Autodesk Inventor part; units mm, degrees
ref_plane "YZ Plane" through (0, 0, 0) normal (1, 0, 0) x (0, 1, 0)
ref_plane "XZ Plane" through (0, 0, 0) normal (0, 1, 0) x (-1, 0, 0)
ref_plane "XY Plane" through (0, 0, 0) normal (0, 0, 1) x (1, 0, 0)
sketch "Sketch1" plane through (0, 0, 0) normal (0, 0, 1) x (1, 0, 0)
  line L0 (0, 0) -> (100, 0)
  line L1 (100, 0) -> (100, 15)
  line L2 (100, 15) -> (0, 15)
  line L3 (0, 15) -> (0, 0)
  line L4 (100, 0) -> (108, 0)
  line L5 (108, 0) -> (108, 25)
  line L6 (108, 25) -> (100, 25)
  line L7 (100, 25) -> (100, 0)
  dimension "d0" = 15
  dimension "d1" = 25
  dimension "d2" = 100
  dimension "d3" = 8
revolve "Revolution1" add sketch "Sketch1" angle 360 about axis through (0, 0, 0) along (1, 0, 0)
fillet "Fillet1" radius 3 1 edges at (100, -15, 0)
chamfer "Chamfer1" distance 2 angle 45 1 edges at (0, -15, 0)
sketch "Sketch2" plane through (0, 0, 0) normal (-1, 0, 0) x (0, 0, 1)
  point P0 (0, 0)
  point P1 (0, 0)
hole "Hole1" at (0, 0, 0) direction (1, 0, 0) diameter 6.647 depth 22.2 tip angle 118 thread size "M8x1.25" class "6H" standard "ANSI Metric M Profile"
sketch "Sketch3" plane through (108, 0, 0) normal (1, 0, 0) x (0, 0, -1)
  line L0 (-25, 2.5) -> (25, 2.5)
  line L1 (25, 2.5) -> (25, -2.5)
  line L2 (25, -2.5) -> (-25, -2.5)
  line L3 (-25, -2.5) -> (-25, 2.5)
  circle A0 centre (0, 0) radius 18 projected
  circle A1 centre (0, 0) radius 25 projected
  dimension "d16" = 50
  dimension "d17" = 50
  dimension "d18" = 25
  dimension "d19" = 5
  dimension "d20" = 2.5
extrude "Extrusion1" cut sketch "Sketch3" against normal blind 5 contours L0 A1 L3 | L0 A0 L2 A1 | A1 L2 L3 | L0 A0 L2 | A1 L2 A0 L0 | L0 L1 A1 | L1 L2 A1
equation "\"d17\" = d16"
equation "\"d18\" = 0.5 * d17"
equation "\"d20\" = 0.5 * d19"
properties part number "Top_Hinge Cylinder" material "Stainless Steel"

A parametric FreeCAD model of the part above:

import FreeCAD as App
import Part
import Sketcher
from FreeCAD import Vector


def edges_at(feature, points):
    """Names of the edges that pass closest to the given points."""
    edges = feature.Shape.Edges
    near = lambda p: min(range(len(edges)), key=lambda i: edges[i].distToShape(Part.Vertex(*p))[0])
    return sorted({f"Edge{near(p) + 1}" for p in points})


def add_polygon(sketch, points):
    """Adds a closed chain of lines whose ends are joined by coincident constraints."""
    first, n = sketch.GeometryCount, len(points)
    for a, b in zip(points, points[1:] + points[:1]):
        sketch.addGeometry(Part.LineSegment(App.Vector(*a, 0), App.Vector(*b, 0)), False)
    for i in range(n):
        sketch.addConstraint(Sketcher.Constraint("Coincident", first + i, 2, first + (i + 1) % n, 1))

doc = App.newDocument("Part")
body = doc.addObject("PartDesign::Body", "Body")

# Sketch on XY plane
sketch1 = body.newObject("Sketcher::SketchObject", "Sketch")
sketch1.AttachmentSupport = (doc.getObject("XY_Plane"), [""])
sketch1.MapMode = "FlatFace"
add_polygon(sketch1, [(0, 15), (0, 0), (108, 0), (108, 25), (100, 25), (100, 15)])  # lines 0-5
sketch1.addConstraint(Sketcher.Constraint("Vertical", 0))
sketch1.addConstraint(Sketcher.Constraint("Horizontal", 1))
sketch1.addConstraint(Sketcher.Constraint("Vertical", 2))
sketch1.addConstraint(Sketcher.Constraint("Horizontal", 3))
sketch1.addConstraint(Sketcher.Constraint("Vertical", 4))
sketch1.addConstraint(Sketcher.Constraint("Horizontal", 5))
sketch1.addConstraint(Sketcher.Constraint("Coincident", 0, 2, -1, 1))
sketch1.addConstraint(Sketcher.Constraint("DistanceX", 3, 2, 3, 1, 8.0))
sketch1.addConstraint(Sketcher.Constraint("DistanceX", 5, 2, 5, 1, 100.0))
sketch1.addConstraint(Sketcher.Constraint("DistanceY", 0, 2, 0, 1, 15.0))
sketch1.addConstraint(Sketcher.Constraint("DistanceY", 2, 1, 2, 2, 25.0))
revolution = body.newObject("PartDesign::Revolution", "Revolution")
revolution.Profile = sketch1
revolution.ReferenceAxis = (sketch1, ["H_Axis"])
revolution.Angle = 360
doc.recompute()

fillet = body.newObject("PartDesign::Fillet", "Fillet")
fillet.Base = (revolution, edges_at(revolution, [(100, -15, 0)]))
fillet.Radius = 3
doc.recompute()

chamfer = body.newObject("PartDesign::Chamfer", "Chamfer")
chamfer.Base = (fillet, edges_at(fillet, [(0, -15, 0)]))
chamfer.Size = 2

# Sketch on YZ plane
sketch2 = body.newObject("Sketcher::SketchObject", "Sketch001")
sketch2.AttachmentSupport = (doc.getObject("YZ_Plane"), [""])
sketch2.MapMode = "FlatFace"
sketch2.addGeometry(Part.Circle(Vector(0, 0, 0), Vector(0, 0, 1), 3.3), False)
sketch2.addConstraint(Sketcher.Constraint("Coincident", 0, 3, -1, 1))
sketch2.addConstraint(Sketcher.Constraint("Diameter", 0, 6.647))
doc.recompute()
hole = body.newObject("PartDesign::Hole", "Hole")
hole.Profile = sketch2
hole.ThreadType = "None"
hole.Diameter = 6.647
hole.DepthType = "Dimension"
hole.Depth = 22.2
hole.DrillPoint = "Angled"
hole.DrillPointAngle = 118
hole.Reversed = True

# Sketch on YZ plane
sketch3 = body.newObject("Sketcher::SketchObject", "Sketch002")
sketch3.AttachmentSupport = (doc.getObject("YZ_Plane"), [""])
sketch3.MapMode = "FlatFace"
sketch3.AttachmentOffset = App.Placement(Vector(0, 0, 108), App.Rotation())
add_polygon(sketch3, [(2, 25), (-2, 25), (-2, -25), (2, -25)])  # lines 0-3
sketch3.addConstraint(Sketcher.Constraint("Horizontal", 0))
sketch3.addConstraint(Sketcher.Constraint("Vertical", 1))
sketch3.addConstraint(Sketcher.Constraint("Horizontal", 2))
sketch3.addConstraint(Sketcher.Constraint("Vertical", 3))
sketch3.addConstraint(Sketcher.Constraint("Symmetric", 0, 2, 2, 2, -1, 1))
sketch3.addConstraint(Sketcher.Constraint("DistanceX", 0, 2, 0, 1, 5.0))
sketch3.addConstraint(Sketcher.Constraint("DistanceY", 1, 2, 1, 1, 50.0))
pocket1 = body.newObject("PartDesign::Pocket", "Pocket")
pocket1.Profile = sketch3
pocket1.Length = 5

doc.recompute()
